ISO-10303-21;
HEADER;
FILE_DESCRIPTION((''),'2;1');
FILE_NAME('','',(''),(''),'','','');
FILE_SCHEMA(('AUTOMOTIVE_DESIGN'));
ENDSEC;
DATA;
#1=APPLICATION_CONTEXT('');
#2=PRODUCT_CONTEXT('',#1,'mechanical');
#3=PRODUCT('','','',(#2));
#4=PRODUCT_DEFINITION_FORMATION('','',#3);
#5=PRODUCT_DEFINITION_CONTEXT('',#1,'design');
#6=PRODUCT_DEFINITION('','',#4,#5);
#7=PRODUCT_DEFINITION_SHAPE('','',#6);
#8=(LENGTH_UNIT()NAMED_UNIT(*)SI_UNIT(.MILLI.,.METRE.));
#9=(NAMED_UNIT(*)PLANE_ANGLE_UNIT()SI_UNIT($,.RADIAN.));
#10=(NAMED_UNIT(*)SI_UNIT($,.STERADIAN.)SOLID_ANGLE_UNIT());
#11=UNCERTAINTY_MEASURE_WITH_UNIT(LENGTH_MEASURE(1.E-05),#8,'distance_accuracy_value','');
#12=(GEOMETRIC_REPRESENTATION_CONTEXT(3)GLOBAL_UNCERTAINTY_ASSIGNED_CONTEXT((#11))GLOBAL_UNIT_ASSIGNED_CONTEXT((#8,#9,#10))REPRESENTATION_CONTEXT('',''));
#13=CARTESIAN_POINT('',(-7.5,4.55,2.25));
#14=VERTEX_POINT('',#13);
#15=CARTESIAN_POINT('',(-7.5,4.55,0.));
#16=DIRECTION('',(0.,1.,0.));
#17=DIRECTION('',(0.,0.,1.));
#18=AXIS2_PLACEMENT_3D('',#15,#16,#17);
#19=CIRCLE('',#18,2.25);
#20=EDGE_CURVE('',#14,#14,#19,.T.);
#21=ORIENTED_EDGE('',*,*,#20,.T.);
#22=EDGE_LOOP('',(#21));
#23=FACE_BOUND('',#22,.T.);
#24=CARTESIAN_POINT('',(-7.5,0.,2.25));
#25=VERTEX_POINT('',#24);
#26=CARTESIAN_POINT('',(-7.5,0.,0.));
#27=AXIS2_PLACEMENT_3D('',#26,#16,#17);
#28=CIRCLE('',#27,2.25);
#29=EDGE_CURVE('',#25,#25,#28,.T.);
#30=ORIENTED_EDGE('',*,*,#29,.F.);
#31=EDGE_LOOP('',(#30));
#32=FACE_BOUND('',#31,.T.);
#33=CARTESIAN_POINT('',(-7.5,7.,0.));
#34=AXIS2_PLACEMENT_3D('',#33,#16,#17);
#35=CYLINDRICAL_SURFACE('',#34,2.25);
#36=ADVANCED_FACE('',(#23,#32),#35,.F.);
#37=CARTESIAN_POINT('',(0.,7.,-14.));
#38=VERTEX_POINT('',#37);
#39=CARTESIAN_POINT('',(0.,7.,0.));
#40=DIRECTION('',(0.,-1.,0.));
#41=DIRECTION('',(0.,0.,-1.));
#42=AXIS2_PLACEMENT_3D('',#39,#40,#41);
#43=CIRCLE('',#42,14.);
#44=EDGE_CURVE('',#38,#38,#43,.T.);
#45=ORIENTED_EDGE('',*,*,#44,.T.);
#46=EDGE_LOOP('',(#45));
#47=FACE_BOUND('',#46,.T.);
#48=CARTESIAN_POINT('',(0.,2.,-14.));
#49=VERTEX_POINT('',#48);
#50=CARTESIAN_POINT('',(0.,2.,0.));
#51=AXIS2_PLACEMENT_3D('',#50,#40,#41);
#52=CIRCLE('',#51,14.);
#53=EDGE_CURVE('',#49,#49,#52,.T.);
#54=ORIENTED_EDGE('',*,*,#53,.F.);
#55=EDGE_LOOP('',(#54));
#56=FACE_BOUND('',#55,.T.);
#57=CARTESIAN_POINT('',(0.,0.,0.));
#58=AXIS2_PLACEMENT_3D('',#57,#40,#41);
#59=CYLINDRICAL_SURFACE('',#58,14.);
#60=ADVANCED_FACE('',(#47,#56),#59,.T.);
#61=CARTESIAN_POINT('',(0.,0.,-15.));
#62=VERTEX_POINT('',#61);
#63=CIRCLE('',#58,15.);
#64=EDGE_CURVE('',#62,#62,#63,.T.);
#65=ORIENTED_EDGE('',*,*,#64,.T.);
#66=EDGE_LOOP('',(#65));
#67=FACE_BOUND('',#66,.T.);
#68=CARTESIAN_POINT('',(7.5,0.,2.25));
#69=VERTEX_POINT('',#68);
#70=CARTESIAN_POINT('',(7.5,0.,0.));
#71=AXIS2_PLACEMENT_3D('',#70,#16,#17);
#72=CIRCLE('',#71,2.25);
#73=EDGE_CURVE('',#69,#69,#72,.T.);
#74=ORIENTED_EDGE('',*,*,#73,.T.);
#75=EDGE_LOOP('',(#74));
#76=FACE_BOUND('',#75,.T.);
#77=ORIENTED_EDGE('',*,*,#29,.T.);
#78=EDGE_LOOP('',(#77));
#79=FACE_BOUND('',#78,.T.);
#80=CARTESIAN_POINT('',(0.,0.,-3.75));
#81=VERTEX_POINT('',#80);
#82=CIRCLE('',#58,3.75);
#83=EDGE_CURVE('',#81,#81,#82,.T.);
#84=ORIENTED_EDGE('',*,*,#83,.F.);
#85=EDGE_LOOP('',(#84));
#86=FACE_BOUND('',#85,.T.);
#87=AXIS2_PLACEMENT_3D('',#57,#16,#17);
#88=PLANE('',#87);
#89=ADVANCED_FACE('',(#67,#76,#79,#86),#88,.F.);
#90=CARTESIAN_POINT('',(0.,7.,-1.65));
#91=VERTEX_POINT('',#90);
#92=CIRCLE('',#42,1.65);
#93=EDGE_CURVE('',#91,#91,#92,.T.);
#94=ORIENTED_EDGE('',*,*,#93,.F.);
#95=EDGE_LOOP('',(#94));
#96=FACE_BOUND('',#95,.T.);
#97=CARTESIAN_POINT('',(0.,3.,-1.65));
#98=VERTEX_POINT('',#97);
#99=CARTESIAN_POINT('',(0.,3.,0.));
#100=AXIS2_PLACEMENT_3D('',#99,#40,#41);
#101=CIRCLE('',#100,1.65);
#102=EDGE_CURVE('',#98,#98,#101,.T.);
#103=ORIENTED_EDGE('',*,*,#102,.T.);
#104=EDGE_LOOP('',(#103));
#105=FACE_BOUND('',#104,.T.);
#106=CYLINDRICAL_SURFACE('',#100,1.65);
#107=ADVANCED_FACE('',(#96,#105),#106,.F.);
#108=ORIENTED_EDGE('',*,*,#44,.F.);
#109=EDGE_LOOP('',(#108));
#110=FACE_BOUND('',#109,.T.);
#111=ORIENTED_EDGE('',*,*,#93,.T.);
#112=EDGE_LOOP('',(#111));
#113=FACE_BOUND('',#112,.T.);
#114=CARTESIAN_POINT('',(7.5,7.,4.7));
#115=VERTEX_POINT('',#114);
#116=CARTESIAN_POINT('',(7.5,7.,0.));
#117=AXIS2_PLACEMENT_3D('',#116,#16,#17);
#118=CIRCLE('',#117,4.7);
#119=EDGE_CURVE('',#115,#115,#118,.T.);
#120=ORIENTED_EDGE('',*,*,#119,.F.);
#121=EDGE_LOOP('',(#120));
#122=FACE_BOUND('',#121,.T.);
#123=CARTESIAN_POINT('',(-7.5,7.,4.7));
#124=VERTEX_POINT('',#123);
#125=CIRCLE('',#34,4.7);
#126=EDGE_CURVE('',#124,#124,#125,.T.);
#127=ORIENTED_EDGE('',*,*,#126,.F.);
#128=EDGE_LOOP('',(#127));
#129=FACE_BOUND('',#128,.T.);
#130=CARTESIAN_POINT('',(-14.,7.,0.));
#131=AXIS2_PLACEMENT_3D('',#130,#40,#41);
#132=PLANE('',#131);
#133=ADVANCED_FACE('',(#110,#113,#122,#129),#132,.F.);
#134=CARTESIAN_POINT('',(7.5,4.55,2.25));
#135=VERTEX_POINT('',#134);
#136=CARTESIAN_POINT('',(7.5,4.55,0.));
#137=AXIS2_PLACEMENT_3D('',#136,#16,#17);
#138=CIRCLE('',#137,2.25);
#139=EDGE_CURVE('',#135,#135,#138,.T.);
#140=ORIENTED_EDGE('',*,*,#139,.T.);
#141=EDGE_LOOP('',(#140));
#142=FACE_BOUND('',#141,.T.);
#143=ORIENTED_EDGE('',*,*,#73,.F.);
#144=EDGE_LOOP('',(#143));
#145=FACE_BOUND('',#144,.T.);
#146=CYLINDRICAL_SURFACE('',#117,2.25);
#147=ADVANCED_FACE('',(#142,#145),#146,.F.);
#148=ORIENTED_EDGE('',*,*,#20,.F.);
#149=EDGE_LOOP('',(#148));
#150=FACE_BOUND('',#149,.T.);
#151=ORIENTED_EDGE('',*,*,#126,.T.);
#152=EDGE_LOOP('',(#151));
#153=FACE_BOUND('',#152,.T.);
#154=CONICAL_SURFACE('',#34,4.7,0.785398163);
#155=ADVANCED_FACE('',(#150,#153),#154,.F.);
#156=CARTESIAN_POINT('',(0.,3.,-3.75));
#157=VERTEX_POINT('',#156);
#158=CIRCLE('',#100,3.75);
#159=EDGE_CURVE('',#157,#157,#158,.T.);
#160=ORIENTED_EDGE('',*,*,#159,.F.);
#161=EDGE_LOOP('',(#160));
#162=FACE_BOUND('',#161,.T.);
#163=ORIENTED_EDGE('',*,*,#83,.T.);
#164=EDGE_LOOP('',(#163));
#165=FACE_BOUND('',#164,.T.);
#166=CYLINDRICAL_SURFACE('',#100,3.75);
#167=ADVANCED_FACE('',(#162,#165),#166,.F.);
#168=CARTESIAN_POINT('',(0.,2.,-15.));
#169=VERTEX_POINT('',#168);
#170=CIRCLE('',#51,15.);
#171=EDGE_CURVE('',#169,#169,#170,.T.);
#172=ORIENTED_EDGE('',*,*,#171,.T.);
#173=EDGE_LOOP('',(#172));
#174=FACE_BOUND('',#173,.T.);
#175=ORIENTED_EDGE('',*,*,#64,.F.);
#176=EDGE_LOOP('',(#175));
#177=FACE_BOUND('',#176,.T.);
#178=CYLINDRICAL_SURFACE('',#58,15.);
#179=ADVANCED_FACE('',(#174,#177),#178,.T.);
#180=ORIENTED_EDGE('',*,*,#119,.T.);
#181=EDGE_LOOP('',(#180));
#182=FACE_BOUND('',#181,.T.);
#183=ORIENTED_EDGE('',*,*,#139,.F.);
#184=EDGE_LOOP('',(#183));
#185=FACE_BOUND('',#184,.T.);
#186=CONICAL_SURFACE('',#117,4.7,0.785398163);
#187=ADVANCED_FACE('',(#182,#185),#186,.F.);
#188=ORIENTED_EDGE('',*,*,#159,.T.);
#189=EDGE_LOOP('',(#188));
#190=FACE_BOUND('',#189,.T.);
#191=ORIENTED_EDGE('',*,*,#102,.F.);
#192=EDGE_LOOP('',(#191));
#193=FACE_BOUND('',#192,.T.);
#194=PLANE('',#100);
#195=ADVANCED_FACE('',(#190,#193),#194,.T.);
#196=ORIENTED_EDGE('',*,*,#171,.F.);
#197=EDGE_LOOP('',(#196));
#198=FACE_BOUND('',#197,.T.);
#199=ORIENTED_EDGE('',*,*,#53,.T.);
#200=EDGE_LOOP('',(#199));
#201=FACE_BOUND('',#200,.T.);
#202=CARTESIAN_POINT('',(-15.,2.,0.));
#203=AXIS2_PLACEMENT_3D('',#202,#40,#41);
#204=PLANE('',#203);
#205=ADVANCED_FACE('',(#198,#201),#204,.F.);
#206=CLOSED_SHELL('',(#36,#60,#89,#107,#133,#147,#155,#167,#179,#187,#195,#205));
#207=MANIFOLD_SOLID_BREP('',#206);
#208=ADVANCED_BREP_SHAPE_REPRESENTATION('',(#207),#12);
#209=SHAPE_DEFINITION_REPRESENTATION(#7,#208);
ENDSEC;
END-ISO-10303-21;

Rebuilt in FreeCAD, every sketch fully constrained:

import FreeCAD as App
import Part
import Sketcher

V = App.Vector


def add_polygon(sketch, points):
    """Adds a closed chain of lines whose ends are joined by coincident constraints."""
    first, n = sketch.GeometryCount, len(points)
    for a, b in zip(points, points[1:] + points[:1]):
        sketch.addGeometry(Part.LineSegment(App.Vector(*a, 0), App.Vector(*b, 0)), False)
    for i in range(n):
        sketch.addConstraint(Sketcher.Constraint("Coincident", first + i, 2, first + (i + 1) % n, 1))

doc = App.newDocument("Part")
body = doc.addObject("PartDesign::Body", "Body")

# Sketch on XY plane
sketch1 = body.newObject("Sketcher::SketchObject", "Sketch")
sketch1.AttachmentSupport = (doc.getObject("XY_Plane"), [""])
sketch1.MapMode = "FlatFace"
add_polygon(sketch1, [(-15, 0), (0, 0), (0, 7), (-14, 7), (-14, 2), (-15, 2)])  # lines 0-5
sketch1.addConstraint(Sketcher.Constraint("Horizontal", 0))
sketch1.addConstraint(Sketcher.Constraint("Vertical", 1))
sketch1.addConstraint(Sketcher.Constraint("Horizontal", 2))
sketch1.addConstraint(Sketcher.Constraint("Vertical", 3))
sketch1.addConstraint(Sketcher.Constraint("Horizontal", 4))
sketch1.addConstraint(Sketcher.Constraint("Vertical", 5))
sketch1.addConstraint(Sketcher.Constraint("Coincident", 0, 2, -1, 1))
sketch1.addConstraint(Sketcher.Constraint("DistanceX", 0, 1, 0, 2, 15.0))
sketch1.addConstraint(Sketcher.Constraint("DistanceX", 2, 2, 2, 1, 14.0))
sketch1.addConstraint(Sketcher.Constraint("DistanceY", 1, 1, 1, 2, 7.0))
sketch1.addConstraint(Sketcher.Constraint("DistanceY", 3, 2, 3, 1, 5.0))
revolution = body.newObject("PartDesign::Revolution", "Revolution")
revolution.Profile = sketch1
revolution.ReferenceAxis = (sketch1, ["V_Axis"])
revolution.Angle = 360

# Sketch on XZ plane
sketch2 = body.newObject("Sketcher::SketchObject", "Sketch001")
sketch2.AttachmentSupport = (doc.getObject("XZ_Plane"), [""])
sketch2.MapMode = "FlatFace"
sketch2.AttachmentOffset = App.Placement(V(0, 0, -7), App.Rotation())
sketch2.addGeometry(Part.Circle(V(-7.5, 0, 0), V(0, 0, 1), 2.2), False)
sketch2.addGeometry(Part.Circle(V(7.5, 0, 0), V(0, 0, 1), 2.2), False)
sketch2.addConstraint(Sketcher.Constraint("Equal", 0, 1))
sketch2.addConstraint(Sketcher.Constraint("Symmetric", 0, 3, 1, 3, -1, 1))
sketch2.addConstraint(Sketcher.Constraint("PointOnObject", 0, 3, -1))
sketch2.addConstraint(Sketcher.Constraint("Diameter", 0, 4.5))
sketch2.addConstraint(Sketcher.Constraint("DistanceX", 0, 3, 1, 3, 15.0))
doc.recompute()
hole = body.newObject("PartDesign::Hole", "Hole")
hole.Profile = sketch2
hole.ThreadType = "None"
hole.Diameter = 4.5
hole.DepthType = "Dimension"
hole.Depth = 7
hole.DrillPoint = "Flat"
hole.HoleCutType = "Countersink"
hole.HoleCutDiameter = 9.4
hole.HoleCutCountersinkAngle = 90
hole.Reversed = True

# Sketch on XZ plane
sketch3 = body.newObject("Sketcher::SketchObject", "Sketch002")
sketch3.AttachmentSupport = (doc.getObject("XZ_Plane"), [""])
sketch3.MapMode = "FlatFace"
sketch3.addGeometry(Part.Circle(V(0, 0, 0), V(0, 0, 1), 3.8), False)
sketch3.addConstraint(Sketcher.Constraint("Coincident", 0, 3, -1, 1))
sketch3.addConstraint(Sketcher.Constraint("Diameter", 0, 7.5))
pocket1 = body.newObject("PartDesign::Pocket", "Pocket")
pocket1.Profile = sketch3
pocket1.Length = 3

# Sketch on XZ plane
sketch4 = body.newObject("Sketcher::SketchObject", "Sketch003")
sketch4.AttachmentSupport = (doc.getObject("XZ_Plane"), [""])
sketch4.MapMode = "FlatFace"
sketch4.AttachmentOffset = App.Placement(V(0, 0, -3), App.Rotation())
sketch4.addGeometry(Part.Circle(V(0, 0, 0), V(0, 0, 1), 1.6), False)
sketch4.addConstraint(Sketcher.Constraint("Coincident", 0, 3, -1, 1))
sketch4.addConstraint(Sketcher.Constraint("Diameter", 0, 3.3))
doc.recompute()
hole2 = body.newObject("PartDesign::Hole", "Hole001")
hole2.Profile = sketch4
hole2.ThreadType = "None"
hole2.Diameter = 3.3
hole2.DepthType = "Dimension"
hole2.Depth = 4
hole2.DrillPoint = "Flat"

doc.recompute()
